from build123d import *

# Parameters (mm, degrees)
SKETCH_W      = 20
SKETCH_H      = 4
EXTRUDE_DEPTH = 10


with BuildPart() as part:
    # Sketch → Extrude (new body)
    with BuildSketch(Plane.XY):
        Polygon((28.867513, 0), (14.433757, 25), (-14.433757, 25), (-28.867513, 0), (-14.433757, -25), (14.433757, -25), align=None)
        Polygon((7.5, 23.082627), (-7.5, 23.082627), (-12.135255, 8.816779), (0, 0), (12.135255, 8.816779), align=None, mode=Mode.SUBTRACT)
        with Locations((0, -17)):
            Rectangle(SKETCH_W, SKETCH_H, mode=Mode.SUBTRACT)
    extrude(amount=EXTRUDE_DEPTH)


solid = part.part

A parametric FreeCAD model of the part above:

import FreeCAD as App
import Part
import Sketcher

V = App.Vector
Q = App.Units.Quantity

doc = App.newDocument("Part")
body = doc.addObject("PartDesign::Body", "Body")

sketch1 = doc.addObject("Sketcher::SketchObject", "Sketch")
body.addObject(sketch1)
sketch1.AttachmentSupport = (doc.XY_Plane, [""])
sketch1.MapMode = "FlatFace"
sketch1.addGeometry([
    Part.LineSegment(V(28.867513, 0, 0), V(14.433757, 25, 0)),
    Part.LineSegment(V(14.433757, 25, 0), V(-14.433757, 25, 0)),
    Part.LineSegment(V(-14.433757, 25, 0), V(-28.867513, 0, 0)),
    Part.LineSegment(V(-28.867513, 0, 0), V(-14.433757, -25, 0)),
    Part.LineSegment(V(-14.433757, -25, 0), V(14.433757, -25, 0)),
    Part.LineSegment(V(14.433757, -25, 0), V(28.867513, 0, 0)),
    Part.LineSegment(V(10, -19, 0), V(-10, -19, 0)),
    Part.LineSegment(V(-10, -19, 0), V(-10, -15, 0)),
    Part.LineSegment(V(-10, -15, 0), V(10, -15, 0)),
    Part.LineSegment(V(10, -15, 0), V(10, -19, 0)),
    Part.LineSegment(V(-7.5, 23.082627, 0), V(7.5, 23.082627, 0)),
    Part.LineSegment(V(7.5, 23.082627, 0), V(12.135255, 8.816779, 0)),
    Part.LineSegment(V(12.135255, 8.816779, 0), V(0, 0, 0)),
    Part.LineSegment(V(0, 0, 0), V(-12.135255, 8.816779, 0)),
    Part.LineSegment(V(-12.135255, 8.816779, 0), V(-7.5, 23.082627, 0)),
], False)
sketch1.addConstraint([
    Sketcher.Constraint("Coincident", 0, 2, 1, 1),
    Sketcher.Constraint("Coincident", 1, 2, 2, 1),
    Sketcher.Constraint("Coincident", 2, 2, 3, 1),
    Sketcher.Constraint("Coincident", 3, 2, 4, 1),
    Sketcher.Constraint("Coincident", 4, 2, 5, 1),
    Sketcher.Constraint("Coincident", 5, 2, 0, 1),
    Sketcher.Constraint("Coincident", 6, 2, 7, 1),
    Sketcher.Constraint("Coincident", 7, 2, 8, 1),
    Sketcher.Constraint("Coincident", 8, 2, 9, 1),
    Sketcher.Constraint("Coincident", 9, 2, 6, 1),
    Sketcher.Constraint("Coincident", 10, 2, 11, 1),
    Sketcher.Constraint("Coincident", 11, 2, 12, 1),
    Sketcher.Constraint("Coincident", 12, 2, 13, 1),
    Sketcher.Constraint("Coincident", 13, 2, 14, 1),
    Sketcher.Constraint("Coincident", 14, 2, 10, 1),
    Sketcher.Constraint("Horizontal", 1),
    Sketcher.Constraint("Horizontal", 4),
    Sketcher.Constraint("Horizontal", 6),
    Sketcher.Constraint("Vertical", 7),
    Sketcher.Constraint("Horizontal", 8),
    Sketcher.Constraint("Vertical", 9),
    Sketcher.Constraint("Horizontal", 10),
    Sketcher.Constraint("Coincident", 12, 2, -1, 1),
    Sketcher.Constraint("Symmetric", 0, 2, 3, 2, -1, 1),
    Sketcher.Constraint("Symmetric", 2, 2, 5, 2, -1, 1),
    Sketcher.Constraint("Symmetric", 11, 2, 13, 2, -2),
    Sketcher.Constraint("PointOnObject", 2, 2, -1),
    Sketcher.Constraint("Parallel", 2, 5),
    Sketcher.Constraint("Vertical", 1, 2, 3, 2),
    Sketcher.Constraint("Equal", 11, 12),
    Sketcher.Constraint("Equal", 13, 14),
    Sketcher.Constraint("DistanceX", 6, 2, 6, 1, 20.0),
    Sketcher.Constraint("DistanceX", 10, 1, 10, 2, 15.0),
    Sketcher.Constraint("DistanceY", 7, 1, 7, 2, 4.0),
    Sketcher.Constraint("Angle", 0, Q("119.999999 deg")),
    Sketcher.Constraint("Angle", 11, Q("-72 deg")),
    Sketcher.Constraint("Angle", 12, Q("-144 deg")),
    Sketcher.Constraint("DistanceY", -1, 1, 0, 2, 25.0),
    Sketcher.Constraint("DistanceX", 6, 2, -1, 1, 10.0),
    Sketcher.Constraint("DistanceY", 6, 2, -1, 1, 19.0),
    Sketcher.Constraint("DistanceX", 11, 2, 0, 2, 2.298502),
])
pad1 = doc.addObject("PartDesign::Pad", "Pad")
body.addObject(pad1)
pad1.Profile = sketch1
pad1.Length = 10

doc.recompute()
